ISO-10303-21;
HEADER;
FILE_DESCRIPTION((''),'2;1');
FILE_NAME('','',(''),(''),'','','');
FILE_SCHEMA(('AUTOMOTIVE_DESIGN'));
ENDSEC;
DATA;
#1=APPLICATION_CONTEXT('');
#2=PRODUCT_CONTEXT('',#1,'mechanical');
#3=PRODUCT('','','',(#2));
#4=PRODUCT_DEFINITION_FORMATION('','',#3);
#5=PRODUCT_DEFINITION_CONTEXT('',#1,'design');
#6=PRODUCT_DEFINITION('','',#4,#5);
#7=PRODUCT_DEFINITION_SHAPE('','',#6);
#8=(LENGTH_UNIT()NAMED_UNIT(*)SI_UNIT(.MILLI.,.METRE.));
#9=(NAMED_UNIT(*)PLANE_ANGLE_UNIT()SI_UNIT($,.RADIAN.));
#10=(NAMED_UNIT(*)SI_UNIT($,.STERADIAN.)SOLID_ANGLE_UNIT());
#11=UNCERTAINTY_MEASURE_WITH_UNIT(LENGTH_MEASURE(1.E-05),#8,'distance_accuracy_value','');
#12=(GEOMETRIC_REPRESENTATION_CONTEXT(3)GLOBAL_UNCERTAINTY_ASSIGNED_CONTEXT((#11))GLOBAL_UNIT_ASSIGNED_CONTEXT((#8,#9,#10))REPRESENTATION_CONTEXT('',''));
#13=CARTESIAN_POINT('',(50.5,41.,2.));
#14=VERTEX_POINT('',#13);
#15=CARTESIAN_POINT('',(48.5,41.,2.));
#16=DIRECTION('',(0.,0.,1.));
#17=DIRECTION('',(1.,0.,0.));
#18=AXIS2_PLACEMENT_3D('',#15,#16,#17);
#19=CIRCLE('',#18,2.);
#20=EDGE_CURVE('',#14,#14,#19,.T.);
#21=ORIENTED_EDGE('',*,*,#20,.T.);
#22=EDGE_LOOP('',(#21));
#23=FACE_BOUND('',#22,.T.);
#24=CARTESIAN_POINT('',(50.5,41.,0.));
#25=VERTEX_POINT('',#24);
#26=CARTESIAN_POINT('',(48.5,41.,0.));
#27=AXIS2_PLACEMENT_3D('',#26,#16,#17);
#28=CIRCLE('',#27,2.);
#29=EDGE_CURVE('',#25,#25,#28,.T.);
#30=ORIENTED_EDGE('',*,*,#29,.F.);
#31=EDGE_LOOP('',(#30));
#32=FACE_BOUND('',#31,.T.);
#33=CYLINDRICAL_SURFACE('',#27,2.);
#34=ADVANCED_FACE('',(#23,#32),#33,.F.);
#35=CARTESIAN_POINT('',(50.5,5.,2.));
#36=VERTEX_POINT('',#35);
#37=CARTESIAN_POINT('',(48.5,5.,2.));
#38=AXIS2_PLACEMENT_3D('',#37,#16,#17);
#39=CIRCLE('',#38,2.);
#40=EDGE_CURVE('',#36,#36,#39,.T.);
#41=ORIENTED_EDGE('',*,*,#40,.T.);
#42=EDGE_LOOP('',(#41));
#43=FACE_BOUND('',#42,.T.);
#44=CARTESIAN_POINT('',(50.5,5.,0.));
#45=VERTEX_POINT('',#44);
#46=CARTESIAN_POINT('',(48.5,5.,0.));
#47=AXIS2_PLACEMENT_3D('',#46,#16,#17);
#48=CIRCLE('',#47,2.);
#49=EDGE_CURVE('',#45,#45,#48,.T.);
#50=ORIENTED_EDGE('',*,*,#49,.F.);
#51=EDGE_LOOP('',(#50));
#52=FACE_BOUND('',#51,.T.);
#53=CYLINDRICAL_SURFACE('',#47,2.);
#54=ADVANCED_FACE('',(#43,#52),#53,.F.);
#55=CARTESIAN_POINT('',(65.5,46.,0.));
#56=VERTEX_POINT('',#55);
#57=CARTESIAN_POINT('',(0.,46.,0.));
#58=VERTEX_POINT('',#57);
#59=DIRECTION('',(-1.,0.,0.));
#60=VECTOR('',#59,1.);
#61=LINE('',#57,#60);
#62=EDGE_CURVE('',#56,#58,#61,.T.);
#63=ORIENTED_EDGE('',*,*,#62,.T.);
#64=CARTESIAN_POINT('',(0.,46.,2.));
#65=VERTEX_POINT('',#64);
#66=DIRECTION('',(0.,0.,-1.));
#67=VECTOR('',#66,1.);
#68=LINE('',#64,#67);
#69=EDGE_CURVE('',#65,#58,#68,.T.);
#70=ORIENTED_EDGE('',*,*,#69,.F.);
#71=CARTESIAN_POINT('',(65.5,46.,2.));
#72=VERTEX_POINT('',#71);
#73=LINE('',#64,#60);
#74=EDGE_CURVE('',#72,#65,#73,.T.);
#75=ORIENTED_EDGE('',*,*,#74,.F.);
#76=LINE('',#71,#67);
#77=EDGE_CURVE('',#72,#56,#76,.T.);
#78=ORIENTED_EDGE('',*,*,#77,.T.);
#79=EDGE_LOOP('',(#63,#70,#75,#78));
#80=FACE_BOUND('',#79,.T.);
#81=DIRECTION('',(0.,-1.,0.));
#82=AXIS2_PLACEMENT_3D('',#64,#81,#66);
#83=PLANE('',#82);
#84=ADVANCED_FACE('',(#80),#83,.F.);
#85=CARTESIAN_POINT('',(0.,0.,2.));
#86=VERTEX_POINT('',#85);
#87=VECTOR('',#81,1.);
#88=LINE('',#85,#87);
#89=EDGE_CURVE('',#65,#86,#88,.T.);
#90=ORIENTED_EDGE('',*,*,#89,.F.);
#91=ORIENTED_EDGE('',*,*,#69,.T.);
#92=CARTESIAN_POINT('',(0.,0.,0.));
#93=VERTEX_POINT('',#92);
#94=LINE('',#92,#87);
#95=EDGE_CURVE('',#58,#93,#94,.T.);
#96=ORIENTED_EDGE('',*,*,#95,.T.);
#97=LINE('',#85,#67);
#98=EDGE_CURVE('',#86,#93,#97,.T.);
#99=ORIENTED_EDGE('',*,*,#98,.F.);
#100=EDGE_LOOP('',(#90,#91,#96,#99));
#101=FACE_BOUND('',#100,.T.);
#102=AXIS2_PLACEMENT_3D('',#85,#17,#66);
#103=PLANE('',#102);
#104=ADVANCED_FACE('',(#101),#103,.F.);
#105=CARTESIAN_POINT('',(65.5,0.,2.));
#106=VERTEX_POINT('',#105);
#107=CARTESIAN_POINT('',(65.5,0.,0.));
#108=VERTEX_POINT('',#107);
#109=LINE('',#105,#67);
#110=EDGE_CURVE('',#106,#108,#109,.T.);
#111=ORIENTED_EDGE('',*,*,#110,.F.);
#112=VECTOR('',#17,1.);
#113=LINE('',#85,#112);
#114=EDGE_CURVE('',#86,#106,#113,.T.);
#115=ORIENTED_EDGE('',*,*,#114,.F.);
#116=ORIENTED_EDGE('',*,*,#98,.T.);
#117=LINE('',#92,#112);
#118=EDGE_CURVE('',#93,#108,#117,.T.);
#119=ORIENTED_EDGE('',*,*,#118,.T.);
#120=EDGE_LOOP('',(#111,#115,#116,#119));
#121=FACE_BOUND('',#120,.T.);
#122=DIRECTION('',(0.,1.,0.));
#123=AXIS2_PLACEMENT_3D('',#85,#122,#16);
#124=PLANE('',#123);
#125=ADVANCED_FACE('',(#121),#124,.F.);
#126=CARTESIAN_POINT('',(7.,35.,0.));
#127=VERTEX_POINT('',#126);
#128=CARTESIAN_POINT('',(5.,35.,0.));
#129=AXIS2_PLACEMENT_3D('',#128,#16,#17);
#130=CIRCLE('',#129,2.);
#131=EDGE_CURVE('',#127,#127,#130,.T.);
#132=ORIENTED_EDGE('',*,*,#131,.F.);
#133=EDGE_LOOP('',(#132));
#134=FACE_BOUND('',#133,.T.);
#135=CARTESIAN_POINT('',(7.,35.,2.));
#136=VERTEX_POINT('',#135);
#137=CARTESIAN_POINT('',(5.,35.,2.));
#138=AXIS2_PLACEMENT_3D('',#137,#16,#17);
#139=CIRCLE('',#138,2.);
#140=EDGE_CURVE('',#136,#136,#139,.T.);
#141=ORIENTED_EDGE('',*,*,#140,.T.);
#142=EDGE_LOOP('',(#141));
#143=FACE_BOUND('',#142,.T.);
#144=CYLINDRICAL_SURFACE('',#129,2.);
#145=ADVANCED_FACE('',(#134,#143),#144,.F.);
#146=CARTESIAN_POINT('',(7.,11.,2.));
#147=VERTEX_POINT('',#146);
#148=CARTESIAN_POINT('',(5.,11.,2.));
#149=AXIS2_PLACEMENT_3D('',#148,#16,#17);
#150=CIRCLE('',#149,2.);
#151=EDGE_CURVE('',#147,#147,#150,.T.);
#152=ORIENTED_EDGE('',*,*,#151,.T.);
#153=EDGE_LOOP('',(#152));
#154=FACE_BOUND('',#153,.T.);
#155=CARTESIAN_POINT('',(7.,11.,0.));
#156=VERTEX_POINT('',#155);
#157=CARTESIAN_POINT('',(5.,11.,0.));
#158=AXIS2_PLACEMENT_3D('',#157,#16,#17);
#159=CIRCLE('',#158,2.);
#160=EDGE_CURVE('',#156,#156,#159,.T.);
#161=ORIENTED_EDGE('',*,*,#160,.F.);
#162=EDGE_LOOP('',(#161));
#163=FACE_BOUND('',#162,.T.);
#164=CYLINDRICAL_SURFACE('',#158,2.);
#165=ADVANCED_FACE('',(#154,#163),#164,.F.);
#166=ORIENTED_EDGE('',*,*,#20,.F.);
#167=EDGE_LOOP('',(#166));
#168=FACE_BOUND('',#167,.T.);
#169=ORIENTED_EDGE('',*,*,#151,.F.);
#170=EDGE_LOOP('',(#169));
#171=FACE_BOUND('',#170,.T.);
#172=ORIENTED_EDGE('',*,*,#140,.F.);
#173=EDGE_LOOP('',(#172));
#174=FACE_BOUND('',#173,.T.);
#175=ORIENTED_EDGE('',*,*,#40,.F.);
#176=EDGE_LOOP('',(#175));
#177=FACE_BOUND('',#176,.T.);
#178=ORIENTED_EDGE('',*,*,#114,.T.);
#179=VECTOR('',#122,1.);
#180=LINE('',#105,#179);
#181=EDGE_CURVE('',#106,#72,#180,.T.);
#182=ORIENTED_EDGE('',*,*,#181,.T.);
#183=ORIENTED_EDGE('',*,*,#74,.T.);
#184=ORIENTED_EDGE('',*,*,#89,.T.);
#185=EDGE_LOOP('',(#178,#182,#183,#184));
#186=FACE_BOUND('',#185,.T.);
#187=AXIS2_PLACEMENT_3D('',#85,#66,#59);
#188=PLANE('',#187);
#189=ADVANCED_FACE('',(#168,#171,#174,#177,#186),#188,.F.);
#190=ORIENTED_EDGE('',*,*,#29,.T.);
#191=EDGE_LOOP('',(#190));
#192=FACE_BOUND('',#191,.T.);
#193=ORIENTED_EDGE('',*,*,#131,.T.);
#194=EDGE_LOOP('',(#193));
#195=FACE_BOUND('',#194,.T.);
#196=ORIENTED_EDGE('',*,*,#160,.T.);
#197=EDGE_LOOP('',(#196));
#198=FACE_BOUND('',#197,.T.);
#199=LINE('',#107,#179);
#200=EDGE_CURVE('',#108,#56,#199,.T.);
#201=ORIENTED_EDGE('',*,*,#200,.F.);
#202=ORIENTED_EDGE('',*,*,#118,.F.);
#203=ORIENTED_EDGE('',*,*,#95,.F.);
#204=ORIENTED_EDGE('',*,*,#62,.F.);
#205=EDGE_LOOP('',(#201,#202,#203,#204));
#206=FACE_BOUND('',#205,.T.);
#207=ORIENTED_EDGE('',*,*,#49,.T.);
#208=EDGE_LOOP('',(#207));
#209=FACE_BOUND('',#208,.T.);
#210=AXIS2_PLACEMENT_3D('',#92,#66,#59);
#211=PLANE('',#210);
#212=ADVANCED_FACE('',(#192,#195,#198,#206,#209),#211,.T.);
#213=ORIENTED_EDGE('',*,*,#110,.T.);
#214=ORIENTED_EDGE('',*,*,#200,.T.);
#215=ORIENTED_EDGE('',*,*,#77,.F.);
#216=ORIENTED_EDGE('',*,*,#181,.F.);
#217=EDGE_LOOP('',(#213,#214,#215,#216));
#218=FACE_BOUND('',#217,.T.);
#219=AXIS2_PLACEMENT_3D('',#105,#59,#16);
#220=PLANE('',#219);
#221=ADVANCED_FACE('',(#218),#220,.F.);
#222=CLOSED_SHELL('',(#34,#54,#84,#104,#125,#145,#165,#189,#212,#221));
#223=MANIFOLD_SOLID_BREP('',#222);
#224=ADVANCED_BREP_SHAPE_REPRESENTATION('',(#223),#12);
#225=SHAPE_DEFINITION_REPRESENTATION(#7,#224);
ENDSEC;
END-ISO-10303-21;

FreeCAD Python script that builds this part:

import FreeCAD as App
import Part
import Sketcher
from FreeCAD import Vector
Q = App.Units.Quantity

doc = App.newDocument("Part")
body = doc.addObject("PartDesign::Body", "Body")

# Sketch on XY plane
sketch1 = body.newObject("Sketcher::SketchObject", "Sketch")
sketch1.AttachmentSupport = (doc.getObject("XY_Plane"), [""])
sketch1.MapMode = "FlatFace"
sketch1.addGeometry([
    Part.LineSegment(Vector(0, 46, 0), Vector(0, 0, 0)),
    Part.LineSegment(Vector(0, 0, 0), Vector(66, 0, 0)),
    Part.LineSegment(Vector(66, 0, 0), Vector(66, 46, 0)),
    Part.LineSegment(Vector(66, 46, 0), Vector(0, 46, 0)),
], False)
sketch1.addConstraint([
    Sketcher.Constraint("Coincident", 0, 2, 1, 1),
    Sketcher.Constraint("Coincident", 1, 2, 2, 1),
    Sketcher.Constraint("Coincident", 2, 2, 3, 1),
    Sketcher.Constraint("Coincident", 3, 2, 0, 1),
    Sketcher.Constraint("Vertical", 0),
    Sketcher.Constraint("Horizontal", 1),
    Sketcher.Constraint("Vertical", 2),
    Sketcher.Constraint("Horizontal", 3),
    Sketcher.Constraint("Coincident", 0, 2, -1, 1),
    Sketcher.Constraint("DistanceY", 0, 2, 0, 1, Q("46 mm")),
    Sketcher.Constraint("DistanceX", 1, 1, 1, 2, Q("65.5 mm")),
])
pad1 = body.newObject("PartDesign::Pad", "Pad")
pad1.Profile = sketch1
pad1.Length = 2

# Sketch on XY plane
sketch2 = body.newObject("Sketcher::SketchObject", "Sketch001")
sketch2.AttachmentSupport = (doc.getObject("XY_Plane"), [""])
sketch2.MapMode = "FlatFace"
sketch2.AttachmentOffset = App.Placement(Vector(0, 0, 2), App.Rotation())
sketch2.addGeometry([
    Part.Circle(Vector(5, 11, 0), Vector(0, 0, 1), 2),
    Part.Circle(Vector(5, 35, 0), Vector(0, 0, 1), 2),
    Part.Circle(Vector(48.5, 41, 0), Vector(0, 0, 1), 2),
    Part.Circle(Vector(48.5, 5, 0), Vector(0, 0, 1), 2),
], False)
sketch2.addConstraint([
    Sketcher.Constraint("Equal", 0, 1),
    Sketcher.Constraint("Equal", 1, 2),
    Sketcher.Constraint("Equal", 2, 3),
    Sketcher.Constraint("Vertical", 0, 3, 1, 3),
    Sketcher.Constraint("Vertical", 2, 3, 3, 3),
    Sketcher.Constraint("Diameter", 0, Q("4 mm")),
    Sketcher.Constraint("DistanceX", -1, 1, 0, 3, Q("5 mm")),
    Sketcher.Constraint("DistanceY", -1, 1, 0, 3, Q("11 mm")),
    Sketcher.Constraint("DistanceY", -1, 1, 1, 3, Q("35 mm")),
    Sketcher.Constraint("DistanceY", -1, 1, 2, 3, Q("41 mm")),
    Sketcher.Constraint("DistanceY", -1, 1, 3, 3, Q("5 mm")),
    Sketcher.Constraint("DistanceX", -1, 1, 2, 3, Q("48.5 mm")),
])
pocket1 = body.newObject("PartDesign::Pocket", "Pocket")
pocket1.Profile = sketch2
pocket1.Type = "ThroughAll"

doc.recompute()
